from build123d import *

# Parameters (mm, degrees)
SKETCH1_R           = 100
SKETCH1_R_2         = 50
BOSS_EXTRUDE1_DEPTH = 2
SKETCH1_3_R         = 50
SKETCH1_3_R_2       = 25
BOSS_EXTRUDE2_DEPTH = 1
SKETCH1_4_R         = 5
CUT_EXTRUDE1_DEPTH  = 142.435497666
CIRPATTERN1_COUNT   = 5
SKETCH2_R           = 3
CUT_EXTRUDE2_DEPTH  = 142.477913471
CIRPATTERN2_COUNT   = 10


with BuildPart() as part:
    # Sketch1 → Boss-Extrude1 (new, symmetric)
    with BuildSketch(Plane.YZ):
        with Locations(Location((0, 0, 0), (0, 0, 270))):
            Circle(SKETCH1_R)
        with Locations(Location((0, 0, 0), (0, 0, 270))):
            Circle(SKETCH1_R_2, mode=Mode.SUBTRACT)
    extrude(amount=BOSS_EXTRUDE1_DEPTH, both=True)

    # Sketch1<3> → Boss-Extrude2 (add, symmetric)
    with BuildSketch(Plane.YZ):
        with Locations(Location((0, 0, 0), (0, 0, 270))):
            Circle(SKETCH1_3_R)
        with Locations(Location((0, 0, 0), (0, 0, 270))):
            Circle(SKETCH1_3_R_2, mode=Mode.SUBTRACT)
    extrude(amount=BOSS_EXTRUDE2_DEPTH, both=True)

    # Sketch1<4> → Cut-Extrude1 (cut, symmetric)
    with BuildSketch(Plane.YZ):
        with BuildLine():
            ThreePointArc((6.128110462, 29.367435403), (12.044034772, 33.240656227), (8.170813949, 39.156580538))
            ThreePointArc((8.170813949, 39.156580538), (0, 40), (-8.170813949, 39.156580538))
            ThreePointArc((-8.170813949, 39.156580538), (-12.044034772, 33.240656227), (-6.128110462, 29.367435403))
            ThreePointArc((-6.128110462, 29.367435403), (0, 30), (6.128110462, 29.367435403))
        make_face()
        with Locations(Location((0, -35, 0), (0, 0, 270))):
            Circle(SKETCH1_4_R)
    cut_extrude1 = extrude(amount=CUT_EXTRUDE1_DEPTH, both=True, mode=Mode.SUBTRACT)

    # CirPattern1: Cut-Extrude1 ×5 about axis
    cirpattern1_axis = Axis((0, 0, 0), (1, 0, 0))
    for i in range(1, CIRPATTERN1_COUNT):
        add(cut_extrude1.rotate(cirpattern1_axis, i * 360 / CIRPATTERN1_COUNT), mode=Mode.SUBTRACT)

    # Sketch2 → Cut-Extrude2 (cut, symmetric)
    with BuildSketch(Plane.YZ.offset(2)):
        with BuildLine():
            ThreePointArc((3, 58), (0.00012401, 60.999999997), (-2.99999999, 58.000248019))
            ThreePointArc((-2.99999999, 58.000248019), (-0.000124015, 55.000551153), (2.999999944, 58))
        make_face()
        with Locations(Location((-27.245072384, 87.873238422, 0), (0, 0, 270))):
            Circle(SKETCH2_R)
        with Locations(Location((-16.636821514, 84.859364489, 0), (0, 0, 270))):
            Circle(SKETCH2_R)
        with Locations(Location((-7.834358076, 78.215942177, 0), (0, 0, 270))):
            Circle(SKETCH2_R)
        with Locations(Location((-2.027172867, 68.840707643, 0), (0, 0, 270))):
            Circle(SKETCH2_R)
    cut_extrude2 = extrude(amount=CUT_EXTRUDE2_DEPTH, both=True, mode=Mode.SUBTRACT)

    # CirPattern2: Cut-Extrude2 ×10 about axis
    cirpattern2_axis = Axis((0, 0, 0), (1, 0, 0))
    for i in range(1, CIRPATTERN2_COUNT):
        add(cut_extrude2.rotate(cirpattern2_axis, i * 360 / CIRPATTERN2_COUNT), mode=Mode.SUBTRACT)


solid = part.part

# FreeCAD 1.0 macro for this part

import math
import FreeCAD as App
import Part
import Sketcher
Q = App.Units.Quantity

doc = App.newDocument("Part")
params = doc.addObject("Spreadsheet::Sheet", "Params")
for row, (alias, value) in enumerate([
    ("sketch1_diameter", "200 mm"),
    ("sketch1_diameter2", "100 mm"),
    ("pad1_length", "4 mm"),
    ("sketch2_diameter", "100 mm"),
    ("sketch2_diameter2", "50 mm"),
    ("pad2_length", "2 mm"),
    ("sketch3_diameter", "10 mm"),
    ("sketch3_radius", "40 mm"),
    ("pocket1_length", "284.870995 mm"),
    ("sketch4_diameter", "6 mm"),
    ("pocket2_length", "284.955827 mm"),
], start=1):
    params.set(f"A{row}", alias)
    params.set(f"B{row}", "=" + value)
    params.setAlias(f"B{row}", alias)

body = doc.addObject("PartDesign::Body", "Body")

# Sketch on YZ plane
sketch1 = body.newObject("Sketcher::SketchObject", "Sketch")
sketch1.AttachmentSupport = (doc.getObject("YZ_Plane"), [""])
sketch1.MapMode = "FlatFace"
sketch1.addGeometry([
    Part.Circle(App.Vector(0, 0, 0), App.Vector(0, 0, 1), 100),
    Part.Circle(App.Vector(0, 0, 0), App.Vector(0, 0, 1), 50),
], False)
sketch1.addConstraint([
    Sketcher.Constraint("Coincident", 0, 3, -1, 1),
    Sketcher.Constraint("Coincident", 1, 3, -1, 1),
    Sketcher.Constraint("Diameter", 0, Q("200 mm")),
    Sketcher.Constraint("Diameter", 1, Q("100 mm")),
])
sketch1.setExpression("Constraints[2]", "Params.sketch1_diameter")
sketch1.setExpression("Constraints[3]", "Params.sketch1_diameter2")
pad1 = body.newObject("PartDesign::Pad", "Pad")
pad1.Profile = sketch1
pad1.setExpression("Length", "Params.pad1_length")
pad1.Midplane = True

# Sketch on YZ plane
sketch2 = body.newObject("Sketcher::SketchObject", "Sketch001")
sketch2.AttachmentSupport = (doc.getObject("YZ_Plane"), [""])
sketch2.MapMode = "FlatFace"
sketch2.addGeometry([
    Part.Circle(App.Vector(0, 0, 0), App.Vector(0, 0, 1), 50),
    Part.Circle(App.Vector(0, 0, 0), App.Vector(0, 0, 1), 25),
], False)
sketch2.addConstraint([
    Sketcher.Constraint("Coincident", 0, 3, -1, 1),
    Sketcher.Constraint("Coincident", 1, 3, -1, 1),
    Sketcher.Constraint("Diameter", 0, Q("100 mm")),
    Sketcher.Constraint("Diameter", 1, Q("50 mm")),
])
sketch2.setExpression("Constraints[2]", "Params.sketch2_diameter")
sketch2.setExpression("Constraints[3]", "Params.sketch2_diameter2")
pad2 = body.newObject("PartDesign::Pad", "Pad001")
pad2.Profile = sketch2
pad2.setExpression("Length", "Params.pad2_length")
pad2.Midplane = True

# Sketch on YZ plane
sketch3 = body.newObject("Sketcher::SketchObject", "Sketch002")
sketch3.AttachmentSupport = (doc.getObject("YZ_Plane"), [""])
sketch3.MapMode = "FlatFace"
sketch3.addGeometry([
    Part.ArcOfCircle(Part.Circle(App.Vector(7, 34, 0), App.Vector(0, 0, 1), 5), math.radians(-102), math.radians(78)),  # 0
    Part.ArcOfCircle(Part.Circle(App.Vector(0, 0, 0), App.Vector(0, 0, 1), 40), math.radians(78), math.radians(102)),  # 1
    Part.ArcOfCircle(Part.Circle(App.Vector(-7, 34, 0), App.Vector(0, 0, 1), 5), math.radians(102), math.radians(282)),  # 2
    Part.ArcOfCircle(Part.Circle(App.Vector(0, 0, 0), App.Vector(0, 0, 1), 30), math.radians(78), math.radians(102)),  # 3
    Part.Circle(App.Vector(0, -35, 0), App.Vector(0, 0, 1), 5),  # 4
], False)
sketch3.addConstraint([
    Sketcher.Constraint("Tangent", 0, 2, 1, 1),
    Sketcher.Constraint("Tangent", 1, 2, 2, 1),
    Sketcher.Constraint("Tangent", 2, 2, 3, 2),
    Sketcher.Constraint("Tangent", 3, 1, 0, 1),
    Sketcher.Constraint("Coincident", 1, 3, -1, 1),
    Sketcher.Constraint("Coincident", 3, 3, -1, 1),
    Sketcher.Constraint("Equal", 2, 4),
    Sketcher.Constraint("PointOnObject", 4, 3, -2),
    Sketcher.Constraint("Horizontal", 0, 3, 2, 3),
    Sketcher.Constraint("Diameter", 4, Q("10 mm")),
    Sketcher.Constraint("Radius", 1, Q("40 mm")),
    Sketcher.Constraint("DistanceY", 4, 3, -1, 1, Q("35 mm")),
    Sketcher.Constraint("DistanceY", -1, 1, 0, 2, Q("39.156581 mm")),
])
sketch3.setExpression("Constraints[9]", "Params.sketch3_diameter")
sketch3.setExpression("Constraints[10]", "Params.sketch3_radius")
pocket1 = body.newObject("PartDesign::Pocket", "Pocket")
pocket1.Profile = sketch3
pocket1.setExpression("Length", "Params.pocket1_length")
pocket1.Midplane = True
doc.recompute()

polarpattern = body.newObject("PartDesign::PolarPattern", "PolarPattern")
polarpattern.Originals = [pocket1]
polarpattern.Axis = (doc.getObject("X_Axis"), [""])
polarpattern.Angle = 360
polarpattern.Occurrences = 5
body.Tip = polarpattern

# Sketch on YZ plane
sketch4 = body.newObject("Sketcher::SketchObject", "Sketch003")
sketch4.AttachmentSupport = (doc.getObject("YZ_Plane"), [""])
sketch4.MapMode = "FlatFace"
sketch4.AttachmentOffset = App.Placement(App.Vector(0, 0, 2), App.Rotation())
sketch4.addGeometry([
    Part.ArcOfCircle(Part.Circle(App.Vector(0, 58, 0), App.Vector(0, 0, 1), 3), math.radians(0), math.radians(180)),  # 0
    Part.ArcOfCircle(Part.Circle(App.Vector(0, 58, 0), App.Vector(0, 0, 1), 3), math.radians(-180), math.radians(0)),  # 1
    Part.Circle(App.Vector(-27.2, 87.9, 0), App.Vector(0, 0, 1), 3),  # 2
    Part.Circle(App.Vector(-16.6, 84.9, 0), App.Vector(0, 0, 1), 3),  # 3
    Part.Circle(App.Vector(-7.8, 78.2, 0), App.Vector(0, 0, 1), 3),  # 4
    Part.Circle(App.Vector(-2, 68.8, 0), App.Vector(0, 0, 1), 3),  # 5
], False)
sketch4.addConstraint([
    Sketcher.Constraint("Coincident", 0, 1, 1, 2),
    Sketcher.Constraint("Coincident", 1, 1, 0, 2),
    Sketcher.Constraint("Equal", 1, 2),
    Sketcher.Constraint("Equal", 2, 3),
    Sketcher.Constraint("Equal", 3, 4),
    Sketcher.Constraint("Equal", 4, 5),
    Sketcher.Constraint("PointOnObject", 0, 3, -2),
    Sketcher.Constraint("Diameter", 2, Q("6 mm")),
    Sketcher.Constraint("DistanceY", -1, 1, 0, 3, Q("58 mm")),
    Sketcher.Constraint("DistanceY", -1, 1, 0, 1, Q("58 mm")),
    Sketcher.Constraint("DistanceX", 2, 3, 5, 3, Q("25.2179 mm")),
    Sketcher.Constraint("DistanceY", -1, 1, 1, 3, Q("58.000551 mm")),
    Sketcher.Constraint("DistanceY", -1, 1, 2, 3, Q("87.873238 mm")),
    Sketcher.Constraint("DistanceX", 3, 3, -1, 1, Q("16.636822 mm")),
    Sketcher.Constraint("DistanceX", 4, 3, -1, 1, Q("7.834358 mm")),
    Sketcher.Constraint("DistanceY", -1, 1, 1, 1, Q("58.000248 mm")),
    Sketcher.Constraint("DistanceX", 2, 3, 3, 3, Q("10.608251 mm")),
    Sketcher.Constraint("DistanceY", 1, 3, 4, 3, Q("20.215391 mm")),
    Sketcher.Constraint("DistanceY", 5, 3, 2, 3, Q("19.032531 mm")),
    Sketcher.Constraint("DistanceY", -1, 1, 3, 3, Q("84.859364 mm")),
])
sketch4.setExpression("Constraints[7]", "Params.sketch4_diameter")
pocket2 = body.newObject("PartDesign::Pocket", "Pocket001")
pocket2.Profile = sketch4
pocket2.setExpression("Length", "Params.pocket2_length")
pocket2.Midplane = True
doc.recompute()

polarpattern2 = body.newObject("PartDesign::PolarPattern", "PolarPattern001")
polarpattern2.Originals = [pocket2]
polarpattern2.Axis = (doc.getObject("X_Axis"), [""])
polarpattern2.Angle = 360
polarpattern2.Occurrences = 10
body.Tip = polarpattern2

doc.recompute()
